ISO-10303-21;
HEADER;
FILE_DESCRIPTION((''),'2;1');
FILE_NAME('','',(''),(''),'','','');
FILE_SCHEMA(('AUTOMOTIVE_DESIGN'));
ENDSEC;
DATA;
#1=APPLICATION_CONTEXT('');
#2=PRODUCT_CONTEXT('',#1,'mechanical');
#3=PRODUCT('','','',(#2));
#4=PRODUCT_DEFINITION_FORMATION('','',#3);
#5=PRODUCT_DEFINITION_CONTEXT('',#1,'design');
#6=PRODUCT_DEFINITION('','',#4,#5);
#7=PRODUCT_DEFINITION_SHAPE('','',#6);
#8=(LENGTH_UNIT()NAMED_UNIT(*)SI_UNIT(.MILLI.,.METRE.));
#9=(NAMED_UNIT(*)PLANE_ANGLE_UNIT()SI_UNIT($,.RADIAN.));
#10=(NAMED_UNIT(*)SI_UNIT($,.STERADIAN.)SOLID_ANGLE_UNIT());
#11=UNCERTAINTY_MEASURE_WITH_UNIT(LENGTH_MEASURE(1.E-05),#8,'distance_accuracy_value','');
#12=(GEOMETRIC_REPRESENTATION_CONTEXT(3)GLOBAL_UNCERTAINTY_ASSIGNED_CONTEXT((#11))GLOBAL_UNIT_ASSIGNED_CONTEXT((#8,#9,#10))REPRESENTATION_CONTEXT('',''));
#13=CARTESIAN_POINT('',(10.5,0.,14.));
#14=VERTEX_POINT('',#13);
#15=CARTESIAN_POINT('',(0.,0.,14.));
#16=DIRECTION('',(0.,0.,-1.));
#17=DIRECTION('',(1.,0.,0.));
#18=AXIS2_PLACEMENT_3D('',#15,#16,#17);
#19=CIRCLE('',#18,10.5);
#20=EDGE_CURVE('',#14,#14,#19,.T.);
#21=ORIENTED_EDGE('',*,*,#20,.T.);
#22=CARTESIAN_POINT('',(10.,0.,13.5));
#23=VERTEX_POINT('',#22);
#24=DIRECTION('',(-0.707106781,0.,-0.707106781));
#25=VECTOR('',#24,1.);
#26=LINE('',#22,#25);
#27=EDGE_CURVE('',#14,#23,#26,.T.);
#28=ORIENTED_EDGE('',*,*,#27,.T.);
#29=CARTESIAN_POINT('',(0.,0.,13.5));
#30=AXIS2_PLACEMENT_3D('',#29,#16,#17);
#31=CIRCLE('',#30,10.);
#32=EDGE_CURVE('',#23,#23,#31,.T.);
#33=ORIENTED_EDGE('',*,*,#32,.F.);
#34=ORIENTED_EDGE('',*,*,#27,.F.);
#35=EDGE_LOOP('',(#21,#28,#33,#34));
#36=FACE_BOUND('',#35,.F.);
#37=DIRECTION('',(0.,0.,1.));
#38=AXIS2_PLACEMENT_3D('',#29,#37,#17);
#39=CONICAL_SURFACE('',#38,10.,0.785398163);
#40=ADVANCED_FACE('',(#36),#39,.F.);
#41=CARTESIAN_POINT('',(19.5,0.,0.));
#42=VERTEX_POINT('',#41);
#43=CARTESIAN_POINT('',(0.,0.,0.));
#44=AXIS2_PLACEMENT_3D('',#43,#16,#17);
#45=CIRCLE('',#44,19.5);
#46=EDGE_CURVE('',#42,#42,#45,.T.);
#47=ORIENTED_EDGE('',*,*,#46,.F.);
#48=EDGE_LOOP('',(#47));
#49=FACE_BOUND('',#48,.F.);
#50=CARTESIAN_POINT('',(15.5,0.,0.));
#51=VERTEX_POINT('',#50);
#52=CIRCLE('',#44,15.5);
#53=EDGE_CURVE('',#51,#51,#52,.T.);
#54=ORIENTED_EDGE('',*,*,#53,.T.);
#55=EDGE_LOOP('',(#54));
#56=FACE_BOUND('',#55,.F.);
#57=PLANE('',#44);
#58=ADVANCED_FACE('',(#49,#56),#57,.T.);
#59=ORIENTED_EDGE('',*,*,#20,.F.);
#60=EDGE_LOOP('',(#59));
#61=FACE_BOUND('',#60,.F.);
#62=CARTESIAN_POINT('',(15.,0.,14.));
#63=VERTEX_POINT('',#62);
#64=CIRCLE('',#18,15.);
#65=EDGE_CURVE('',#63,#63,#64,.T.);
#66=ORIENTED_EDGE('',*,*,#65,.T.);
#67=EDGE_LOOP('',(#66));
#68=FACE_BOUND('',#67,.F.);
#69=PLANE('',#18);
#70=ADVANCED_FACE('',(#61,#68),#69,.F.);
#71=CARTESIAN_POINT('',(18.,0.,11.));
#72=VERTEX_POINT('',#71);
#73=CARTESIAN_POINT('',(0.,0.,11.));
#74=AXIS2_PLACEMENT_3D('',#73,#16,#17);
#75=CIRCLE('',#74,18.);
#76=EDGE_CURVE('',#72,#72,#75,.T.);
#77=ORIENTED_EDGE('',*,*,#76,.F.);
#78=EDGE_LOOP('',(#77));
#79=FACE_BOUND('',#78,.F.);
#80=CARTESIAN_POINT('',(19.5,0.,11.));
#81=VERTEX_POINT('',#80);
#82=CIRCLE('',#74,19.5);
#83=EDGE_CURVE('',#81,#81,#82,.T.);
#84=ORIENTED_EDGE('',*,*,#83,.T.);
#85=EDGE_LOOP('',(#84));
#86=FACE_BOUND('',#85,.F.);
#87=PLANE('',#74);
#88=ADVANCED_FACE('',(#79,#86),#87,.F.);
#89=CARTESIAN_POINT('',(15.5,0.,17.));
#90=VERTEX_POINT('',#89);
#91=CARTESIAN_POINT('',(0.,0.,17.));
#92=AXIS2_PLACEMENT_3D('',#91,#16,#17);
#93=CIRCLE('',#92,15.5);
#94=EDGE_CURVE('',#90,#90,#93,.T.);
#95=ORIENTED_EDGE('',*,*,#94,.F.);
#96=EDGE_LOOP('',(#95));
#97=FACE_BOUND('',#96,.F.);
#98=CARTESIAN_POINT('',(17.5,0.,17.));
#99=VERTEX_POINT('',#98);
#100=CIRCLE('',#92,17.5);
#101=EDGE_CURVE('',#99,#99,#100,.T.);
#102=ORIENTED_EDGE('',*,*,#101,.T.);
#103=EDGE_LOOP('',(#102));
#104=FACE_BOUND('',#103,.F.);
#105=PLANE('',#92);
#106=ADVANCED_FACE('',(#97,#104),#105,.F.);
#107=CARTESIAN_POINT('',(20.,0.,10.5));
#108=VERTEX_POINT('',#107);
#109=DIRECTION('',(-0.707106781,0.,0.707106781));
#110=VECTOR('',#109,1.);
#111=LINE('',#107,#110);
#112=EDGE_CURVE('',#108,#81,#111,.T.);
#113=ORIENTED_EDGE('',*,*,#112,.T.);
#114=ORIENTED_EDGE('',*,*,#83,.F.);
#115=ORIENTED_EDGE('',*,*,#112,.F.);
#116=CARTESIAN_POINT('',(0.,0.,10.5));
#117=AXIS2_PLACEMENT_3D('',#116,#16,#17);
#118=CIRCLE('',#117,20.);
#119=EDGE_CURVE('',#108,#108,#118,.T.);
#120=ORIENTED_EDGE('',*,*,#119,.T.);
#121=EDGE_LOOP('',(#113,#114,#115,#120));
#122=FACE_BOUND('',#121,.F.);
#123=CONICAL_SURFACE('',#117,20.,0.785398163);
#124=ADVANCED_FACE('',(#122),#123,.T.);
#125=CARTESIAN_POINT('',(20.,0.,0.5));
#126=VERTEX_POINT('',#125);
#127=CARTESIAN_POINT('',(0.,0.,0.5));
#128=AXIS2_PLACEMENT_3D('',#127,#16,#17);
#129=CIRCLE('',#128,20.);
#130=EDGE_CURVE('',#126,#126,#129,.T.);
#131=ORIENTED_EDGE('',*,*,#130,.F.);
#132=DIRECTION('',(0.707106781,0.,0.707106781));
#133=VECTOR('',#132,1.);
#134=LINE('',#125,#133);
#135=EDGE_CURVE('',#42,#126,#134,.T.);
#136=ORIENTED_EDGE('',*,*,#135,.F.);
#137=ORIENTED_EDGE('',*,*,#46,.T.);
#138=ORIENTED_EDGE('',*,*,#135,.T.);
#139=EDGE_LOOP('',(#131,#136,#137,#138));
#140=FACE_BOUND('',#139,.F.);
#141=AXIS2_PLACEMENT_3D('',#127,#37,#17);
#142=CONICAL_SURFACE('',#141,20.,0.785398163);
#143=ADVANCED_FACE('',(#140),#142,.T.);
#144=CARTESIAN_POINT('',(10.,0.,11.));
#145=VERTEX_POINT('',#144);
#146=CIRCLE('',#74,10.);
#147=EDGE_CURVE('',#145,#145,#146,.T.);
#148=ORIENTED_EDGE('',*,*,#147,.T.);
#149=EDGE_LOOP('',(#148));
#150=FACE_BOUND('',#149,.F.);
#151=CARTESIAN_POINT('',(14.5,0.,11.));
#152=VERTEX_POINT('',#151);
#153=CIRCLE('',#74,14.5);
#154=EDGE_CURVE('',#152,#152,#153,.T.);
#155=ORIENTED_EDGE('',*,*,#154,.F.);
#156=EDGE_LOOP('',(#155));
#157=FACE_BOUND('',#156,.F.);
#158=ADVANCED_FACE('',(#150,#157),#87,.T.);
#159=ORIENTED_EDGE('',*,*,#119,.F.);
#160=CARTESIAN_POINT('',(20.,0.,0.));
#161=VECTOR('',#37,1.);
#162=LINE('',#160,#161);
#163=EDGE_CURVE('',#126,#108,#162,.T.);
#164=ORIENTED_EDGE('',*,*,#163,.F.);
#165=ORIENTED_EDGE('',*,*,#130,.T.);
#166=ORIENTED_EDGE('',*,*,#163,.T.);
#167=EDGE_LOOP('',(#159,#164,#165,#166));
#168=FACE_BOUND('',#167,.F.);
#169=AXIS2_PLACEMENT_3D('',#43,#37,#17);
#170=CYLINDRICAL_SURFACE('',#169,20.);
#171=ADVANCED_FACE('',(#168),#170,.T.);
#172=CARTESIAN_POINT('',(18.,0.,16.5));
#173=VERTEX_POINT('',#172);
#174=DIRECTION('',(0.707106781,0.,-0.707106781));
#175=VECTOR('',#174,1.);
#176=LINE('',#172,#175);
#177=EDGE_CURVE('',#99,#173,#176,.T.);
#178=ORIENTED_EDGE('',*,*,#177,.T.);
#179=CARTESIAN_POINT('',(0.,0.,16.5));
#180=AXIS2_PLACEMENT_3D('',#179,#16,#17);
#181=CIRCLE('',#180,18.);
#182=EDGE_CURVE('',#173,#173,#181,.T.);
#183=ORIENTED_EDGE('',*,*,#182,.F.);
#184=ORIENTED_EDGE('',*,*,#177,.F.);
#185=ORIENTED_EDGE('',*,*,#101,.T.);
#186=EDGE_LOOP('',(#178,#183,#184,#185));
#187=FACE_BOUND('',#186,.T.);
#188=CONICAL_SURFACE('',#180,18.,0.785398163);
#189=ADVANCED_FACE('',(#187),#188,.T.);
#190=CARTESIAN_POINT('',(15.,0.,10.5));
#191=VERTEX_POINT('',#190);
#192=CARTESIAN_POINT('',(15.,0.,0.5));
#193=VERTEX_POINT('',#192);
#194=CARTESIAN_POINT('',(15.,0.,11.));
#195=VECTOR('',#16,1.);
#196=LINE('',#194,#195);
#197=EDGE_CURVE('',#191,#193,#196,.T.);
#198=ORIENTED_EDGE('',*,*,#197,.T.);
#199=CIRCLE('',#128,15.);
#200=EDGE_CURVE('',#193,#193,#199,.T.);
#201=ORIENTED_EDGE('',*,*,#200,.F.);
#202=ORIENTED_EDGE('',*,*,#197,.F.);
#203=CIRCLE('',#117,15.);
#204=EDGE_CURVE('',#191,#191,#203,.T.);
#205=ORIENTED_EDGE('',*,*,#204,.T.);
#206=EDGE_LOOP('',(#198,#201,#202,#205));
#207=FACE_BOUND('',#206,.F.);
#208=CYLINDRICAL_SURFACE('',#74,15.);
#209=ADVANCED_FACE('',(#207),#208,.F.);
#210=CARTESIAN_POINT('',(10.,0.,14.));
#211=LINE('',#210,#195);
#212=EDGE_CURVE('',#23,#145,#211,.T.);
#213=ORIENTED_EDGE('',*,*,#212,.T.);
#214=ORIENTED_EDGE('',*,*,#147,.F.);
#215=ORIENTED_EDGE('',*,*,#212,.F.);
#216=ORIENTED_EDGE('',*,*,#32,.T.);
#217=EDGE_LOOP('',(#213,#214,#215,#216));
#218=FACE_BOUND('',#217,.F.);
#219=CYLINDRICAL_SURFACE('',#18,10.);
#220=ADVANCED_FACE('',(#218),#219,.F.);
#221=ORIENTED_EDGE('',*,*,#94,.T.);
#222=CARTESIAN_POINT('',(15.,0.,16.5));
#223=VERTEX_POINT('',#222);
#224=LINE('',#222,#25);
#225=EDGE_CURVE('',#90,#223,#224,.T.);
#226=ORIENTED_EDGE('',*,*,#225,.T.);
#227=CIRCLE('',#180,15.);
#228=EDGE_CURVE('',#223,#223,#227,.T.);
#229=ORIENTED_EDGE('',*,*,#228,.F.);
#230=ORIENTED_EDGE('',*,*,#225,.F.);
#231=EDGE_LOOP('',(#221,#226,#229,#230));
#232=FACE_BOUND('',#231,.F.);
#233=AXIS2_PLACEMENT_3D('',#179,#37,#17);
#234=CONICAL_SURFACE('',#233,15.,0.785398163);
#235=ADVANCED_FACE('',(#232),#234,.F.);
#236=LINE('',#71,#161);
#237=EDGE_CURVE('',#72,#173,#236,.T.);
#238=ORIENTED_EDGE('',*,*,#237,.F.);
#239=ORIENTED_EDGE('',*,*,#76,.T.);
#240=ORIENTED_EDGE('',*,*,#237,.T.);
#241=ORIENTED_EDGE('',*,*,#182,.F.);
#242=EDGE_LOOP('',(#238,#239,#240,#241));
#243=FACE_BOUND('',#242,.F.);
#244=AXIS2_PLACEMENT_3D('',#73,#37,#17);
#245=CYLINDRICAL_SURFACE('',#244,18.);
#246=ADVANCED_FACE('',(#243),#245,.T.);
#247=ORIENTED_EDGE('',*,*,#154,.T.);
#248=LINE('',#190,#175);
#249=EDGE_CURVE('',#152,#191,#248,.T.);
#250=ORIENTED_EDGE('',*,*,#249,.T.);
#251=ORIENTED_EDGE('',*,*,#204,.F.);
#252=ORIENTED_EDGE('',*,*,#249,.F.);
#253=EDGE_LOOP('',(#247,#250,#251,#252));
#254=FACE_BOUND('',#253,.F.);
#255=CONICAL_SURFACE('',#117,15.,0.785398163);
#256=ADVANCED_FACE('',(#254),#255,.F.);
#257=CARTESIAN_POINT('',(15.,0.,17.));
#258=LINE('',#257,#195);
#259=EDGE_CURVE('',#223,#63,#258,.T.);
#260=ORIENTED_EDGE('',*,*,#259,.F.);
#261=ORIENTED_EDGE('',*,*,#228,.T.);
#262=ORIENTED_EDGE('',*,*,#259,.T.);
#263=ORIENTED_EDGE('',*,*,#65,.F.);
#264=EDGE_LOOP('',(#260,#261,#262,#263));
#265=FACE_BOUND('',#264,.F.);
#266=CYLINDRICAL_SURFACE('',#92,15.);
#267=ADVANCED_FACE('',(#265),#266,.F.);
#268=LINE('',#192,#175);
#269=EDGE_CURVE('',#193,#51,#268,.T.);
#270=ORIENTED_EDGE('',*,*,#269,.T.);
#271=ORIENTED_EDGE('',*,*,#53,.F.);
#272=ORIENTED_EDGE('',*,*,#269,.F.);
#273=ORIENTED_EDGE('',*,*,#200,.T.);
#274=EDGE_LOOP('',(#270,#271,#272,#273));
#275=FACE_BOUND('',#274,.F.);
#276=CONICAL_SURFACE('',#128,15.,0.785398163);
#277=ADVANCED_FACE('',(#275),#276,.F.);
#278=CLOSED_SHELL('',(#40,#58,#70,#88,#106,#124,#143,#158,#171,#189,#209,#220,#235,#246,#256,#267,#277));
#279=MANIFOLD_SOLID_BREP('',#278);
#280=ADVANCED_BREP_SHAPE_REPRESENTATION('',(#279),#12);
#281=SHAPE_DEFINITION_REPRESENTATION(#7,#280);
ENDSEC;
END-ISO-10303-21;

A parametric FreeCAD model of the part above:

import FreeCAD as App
import Part
import Sketcher
from FreeCAD import Vector
Q = App.Units.Quantity


def edges_at(feature, points):
    """Names of the edges that pass closest to the given points."""
    edges = feature.Shape.Edges
    near = lambda p: min(range(len(edges)), key=lambda i: edges[i].distToShape(Part.Vertex(*p))[0])
    return sorted({f"Edge{near(p) + 1}" for p in points})


def add_polygon(sketch, points):
    """Adds a closed chain of lines whose ends are joined by coincident constraints."""
    first, n = sketch.GeometryCount, len(points)
    for a, b in zip(points, points[1:] + points[:1]):
        sketch.addGeometry(Part.LineSegment(App.Vector(*a, 0), App.Vector(*b, 0)), False)
    for i in range(n):
        sketch.addConstraint(Sketcher.Constraint("Coincident", first + i, 2, first + (i + 1) % n, 1))

doc = App.newDocument("Part")
body = doc.addObject("PartDesign::Body", "Body")

sketch1 = body.newObject("Sketcher::SketchObject", "Sketch")
sketch1.AttachmentSupport = (doc.getObject("XZ_Plane"), [""])
sketch1.MapMode = "FlatFace"
add_polygon(sketch1, [(18, 17), (15, 17), (15, 14), (10, 14), (10, 11), (15, 11), (15, 0), (20, 0), (20, 11), (18, 11)])
sketch1.addConstraint([
    Sketcher.Constraint("Horizontal", 0),
    Sketcher.Constraint("Vertical", 1),
    Sketcher.Constraint("Horizontal", 2),
    Sketcher.Constraint("Vertical", 3),
    Sketcher.Constraint("Horizontal", 4),
    Sketcher.Constraint("Vertical", 5),
    Sketcher.Constraint("Horizontal", 6),
    Sketcher.Constraint("Vertical", 7),
    Sketcher.Constraint("Horizontal", 8),
    Sketcher.Constraint("Vertical", 9),
    Sketcher.Constraint("PointOnObject", 5, 2, -1),
    Sketcher.Constraint("Horizontal", 4, 2, 7, 2),
    Sketcher.Constraint("Vertical", 1, 2, 4, 2),
    Sketcher.Constraint("Equal", 4, 6),
    Sketcher.Constraint("Equal", 0, 1),
    Sketcher.Constraint("Equal", 1, 3),
    Sketcher.Constraint("DistanceX", 0, 2, 0, 1, Q("3 mm")),
    Sketcher.Constraint("DistanceX", 2, 2, 2, 1, Q("5 mm")),
    Sketcher.Constraint("DistanceY", 5, 2, 5, 1, Q("11 mm")),
    Sketcher.Constraint("DistanceX", -1, 1, 0, 2, Q("15 mm")),
])
revolution = body.newObject("PartDesign::Revolution", "Revolution")
revolution.Profile = sketch1
revolution.ReferenceAxis = (sketch1, ["V_Axis"])
revolution.Angle = 360
doc.recompute()

chamfer = body.newObject("PartDesign::Chamfer", "Chamfer")
chamfer.Base = (revolution, edges_at(revolution, [
    (-15, 0, 17),
    (-10, 0, 14),
    (-15, 0, 11),
    (-15, 0, 0),
    (-20, 0, 11),
    (-18, 0, 17),
    (-20, 0, 0),
]))
chamfer.ChamferType = "Two distances"
chamfer.Size = 0.5
chamfer.Size2 = 0.5

doc.recompute()
